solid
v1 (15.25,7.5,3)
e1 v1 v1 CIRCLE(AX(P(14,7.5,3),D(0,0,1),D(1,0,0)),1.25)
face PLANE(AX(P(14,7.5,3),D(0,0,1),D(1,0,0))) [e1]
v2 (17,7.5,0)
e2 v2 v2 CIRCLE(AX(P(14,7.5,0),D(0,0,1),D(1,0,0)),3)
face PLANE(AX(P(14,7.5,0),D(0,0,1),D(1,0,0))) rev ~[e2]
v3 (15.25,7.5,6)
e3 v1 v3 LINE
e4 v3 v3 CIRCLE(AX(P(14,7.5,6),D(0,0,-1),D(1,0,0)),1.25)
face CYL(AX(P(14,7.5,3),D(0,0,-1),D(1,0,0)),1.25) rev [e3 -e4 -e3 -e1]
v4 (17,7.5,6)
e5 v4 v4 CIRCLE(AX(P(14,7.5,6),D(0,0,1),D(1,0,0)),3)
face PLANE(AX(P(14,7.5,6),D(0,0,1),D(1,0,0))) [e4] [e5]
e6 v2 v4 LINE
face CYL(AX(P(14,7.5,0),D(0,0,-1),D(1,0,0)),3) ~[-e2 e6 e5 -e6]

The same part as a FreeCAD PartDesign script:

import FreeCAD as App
import Part
import Sketcher
from FreeCAD import Vector
Q = App.Units.Quantity

doc = App.newDocument("Part")
params = doc.addObject("Spreadsheet::Sheet", "Params")
for row, (alias, value) in enumerate([
    ("sketch1_diameter", "2.5 mm"),
    ("pad1_length", "5 mm"),
    ("sketch2_diameter", "6 mm"),
    ("pad2_length", "6 mm"),
], start=1):
    params.set(f"A{row}", alias)
    params.set(f"B{row}", "=" + value)
    params.setAlias(f"B{row}", alias)

body = doc.addObject("PartDesign::Body", "Body")

sketch1 = body.newObject("Sketcher::SketchObject", "Sketch")
sketch1.AttachmentSupport = (doc.getObject("XY_Plane"), [""])
sketch1.MapMode = "FlatFace"
sketch1.AttachmentOffset = App.Placement(Vector(0, 0, 3), App.Rotation())
sketch1.addGeometry(Part.Circle(Vector(50, 14, 0), Vector(0, 0, 1), 1.2), False)
sketch1.addConstraint(Sketcher.Constraint("Diameter", 0, Q("2.5 mm")))
sketch1.addConstraint(Sketcher.Constraint("DistanceX", -1, 1, 0, 3, Q("50 mm")))
sketch1.addConstraint(Sketcher.Constraint("DistanceY", -1, 1, 0, 3, Q("14 mm")))
sketch1.setExpression("Constraints[0]", "Params.sketch1_diameter")
pad1 = body.newObject("PartDesign::Pad", "Pad")
pad1.Profile = sketch1
pad1.setExpression("Length", "Params.pad1_length")
body2 = doc.addObject("PartDesign::Body", "Body001")

sketch2 = body2.newObject("Sketcher::SketchObject", "Sketch001")
sketch2.AttachmentSupport = (doc.getObject("XY_Plane001"), [""])
sketch2.MapMode = "FlatFace"
sketch2.addGeometry(Part.Circle(Vector(50, 14, 0), Vector(0, 0, 1), 3), False)
sketch2.addConstraint(Sketcher.Constraint("Diameter", 0, Q("6 mm")))
sketch2.addConstraint(Sketcher.Constraint("DistanceX", -1, 1, 0, 3, Q("50 mm")))
sketch2.addConstraint(Sketcher.Constraint("DistanceY", -1, 1, 0, 3, Q("14 mm")))
sketch2.setExpression("Constraints[0]", "Params.sketch2_diameter")
pad2 = body2.newObject("PartDesign::Pad", "Pad001")
pad2.Profile = sketch2
pad2.setExpression("Length", "Params.pad2_length")
doc.recompute()

boolean = body2.newObject("PartDesign::Boolean", "Boolean")
boolean.Type = "Cut"
boolean.addObjects([body])
body3 = doc.addObject("PartDesign::Body", "Body002")
doc.recompute()

body2.Placement = App.Placement(Vector(-36, -6.5, 0), App.Rotation(Vector(0, 0, 1), 0))
boolean2 = body3.newObject("PartDesign::Boolean", "Boolean001")
boolean2.Type = "Fuse"
boolean2.addObjects([body2])

doc.recompute()
